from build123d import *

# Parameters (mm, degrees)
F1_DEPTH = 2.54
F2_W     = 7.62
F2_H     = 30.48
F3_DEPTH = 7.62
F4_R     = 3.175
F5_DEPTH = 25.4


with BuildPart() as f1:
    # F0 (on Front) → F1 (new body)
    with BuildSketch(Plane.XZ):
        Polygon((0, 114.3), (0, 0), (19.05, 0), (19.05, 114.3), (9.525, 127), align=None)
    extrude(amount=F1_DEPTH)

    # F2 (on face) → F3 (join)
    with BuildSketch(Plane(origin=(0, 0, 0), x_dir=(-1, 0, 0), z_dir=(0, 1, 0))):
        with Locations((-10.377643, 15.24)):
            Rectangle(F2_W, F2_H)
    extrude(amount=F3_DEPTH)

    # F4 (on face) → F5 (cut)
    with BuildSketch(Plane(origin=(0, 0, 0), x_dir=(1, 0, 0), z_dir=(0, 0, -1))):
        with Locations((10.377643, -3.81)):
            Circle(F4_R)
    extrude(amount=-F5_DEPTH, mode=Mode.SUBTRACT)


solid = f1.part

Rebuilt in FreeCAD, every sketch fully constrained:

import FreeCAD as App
import Part
import Sketcher
Q = App.Units.Quantity


def add_polygon(sketch, points):
    """Adds a closed chain of lines whose ends are joined by coincident constraints."""
    first, n = sketch.GeometryCount, len(points)
    for a, b in zip(points, points[1:] + points[:1]):
        sketch.addGeometry(Part.LineSegment(App.Vector(*a, 0), App.Vector(*b, 0)), False)
    for i in range(n):
        sketch.addConstraint(Sketcher.Constraint("Coincident", first + i, 2, first + (i + 1) % n, 1))

doc = App.newDocument("Part")
body = doc.addObject("PartDesign::Body", "Body")

sketch1 = doc.addObject("Sketcher::SketchObject", "Sketch")
body.addObject(sketch1)
sketch1.AttachmentSupport = (doc.XZ_Plane, [""])
sketch1.MapMode = "FlatFace"
add_polygon(sketch1, [(0, 114.3), (0, 0), (19.05, 0), (19.05, 114.3), (9.525, 127)])
sketch1.addConstraint(Sketcher.Constraint("Vertical", 0))
sketch1.addConstraint(Sketcher.Constraint("Horizontal", 1))
sketch1.addConstraint(Sketcher.Constraint("Vertical", 2))
sketch1.addConstraint(Sketcher.Constraint("Coincident", 0, 2, -1, 1))
sketch1.addConstraint(Sketcher.Constraint("Horizontal", 2, 2, 4, 2))
sketch1.addConstraint(Sketcher.Constraint("Equal", 3, 4))
sketch1.addConstraint(Sketcher.Constraint("DistanceY", 0, 2, 0, 1, Q("4.5 in")))
sketch1.addConstraint(Sketcher.Constraint("DistanceY", -1, 1, 3, 2, Q("5 in")))
sketch1.addConstraint(Sketcher.Constraint("DistanceX", 1, 1, 1, 2, Q("0.75 in")))
pad1 = doc.addObject("PartDesign::Pad", "Pad")
body.addObject(pad1)
pad1.Profile = sketch1
pad1.Length = Q("0.1 in")

sketch2 = doc.addObject("Sketcher::SketchObject", "Sketch001")
body.addObject(sketch2)
sketch2.AttachmentSupport = (doc.XZ_Plane, [""])
sketch2.MapMode = "FlatFace"
add_polygon(sketch2, [(14.187643, 30.48), (14.187643, 0), (6.567643, 0), (6.567643, 30.48)])
sketch2.addConstraint(Sketcher.Constraint("Vertical", 0))
sketch2.addConstraint(Sketcher.Constraint("Horizontal", 1))
sketch2.addConstraint(Sketcher.Constraint("Vertical", 2))
sketch2.addConstraint(Sketcher.Constraint("Horizontal", 3))
sketch2.addConstraint(Sketcher.Constraint("PointOnObject", 0, 2, -1))
sketch2.addConstraint(Sketcher.Constraint("DistanceX", 1, 2, 1, 1, Q("0.3 in")))
sketch2.addConstraint(Sketcher.Constraint("DistanceY", 0, 2, 0, 1, Q("1.2 in")))
sketch2.addConstraint(Sketcher.Constraint("DistanceX", -1, 1, 0, 2, Q("14.187643 mm")))
pad2 = doc.addObject("PartDesign::Pad", "Pad001")
body.addObject(pad2)
pad2.Profile = sketch2
pad2.Length = Q("0.3 in")
pad2.Reversed = True

sketch3 = doc.addObject("Sketcher::SketchObject", "Sketch002")
body.addObject(sketch3)
sketch3.AttachmentSupport = (doc.XY_Plane, [""])
sketch3.MapMode = "FlatFace"
sketch3.addGeometry(Part.Circle(App.Vector(10.377643, 3.81, 0), App.Vector(0, 0, 1), 3.175), False)
sketch3.addConstraint(Sketcher.Constraint("Diameter", 0, Q("0.25 in")))
sketch3.addConstraint(Sketcher.Constraint("DistanceY", -1, 1, 0, 3, Q("0.15 in")))
sketch3.addConstraint(Sketcher.Constraint("DistanceX", -1, 1, 0, 3, Q("10.377643 mm")))
pocket1 = doc.addObject("PartDesign::Pocket", "Pocket")
body.addObject(pocket1)
pocket1.Profile = sketch3
pocket1.Length = Q("1 in")
pocket1.Reversed = True

doc.recompute()
